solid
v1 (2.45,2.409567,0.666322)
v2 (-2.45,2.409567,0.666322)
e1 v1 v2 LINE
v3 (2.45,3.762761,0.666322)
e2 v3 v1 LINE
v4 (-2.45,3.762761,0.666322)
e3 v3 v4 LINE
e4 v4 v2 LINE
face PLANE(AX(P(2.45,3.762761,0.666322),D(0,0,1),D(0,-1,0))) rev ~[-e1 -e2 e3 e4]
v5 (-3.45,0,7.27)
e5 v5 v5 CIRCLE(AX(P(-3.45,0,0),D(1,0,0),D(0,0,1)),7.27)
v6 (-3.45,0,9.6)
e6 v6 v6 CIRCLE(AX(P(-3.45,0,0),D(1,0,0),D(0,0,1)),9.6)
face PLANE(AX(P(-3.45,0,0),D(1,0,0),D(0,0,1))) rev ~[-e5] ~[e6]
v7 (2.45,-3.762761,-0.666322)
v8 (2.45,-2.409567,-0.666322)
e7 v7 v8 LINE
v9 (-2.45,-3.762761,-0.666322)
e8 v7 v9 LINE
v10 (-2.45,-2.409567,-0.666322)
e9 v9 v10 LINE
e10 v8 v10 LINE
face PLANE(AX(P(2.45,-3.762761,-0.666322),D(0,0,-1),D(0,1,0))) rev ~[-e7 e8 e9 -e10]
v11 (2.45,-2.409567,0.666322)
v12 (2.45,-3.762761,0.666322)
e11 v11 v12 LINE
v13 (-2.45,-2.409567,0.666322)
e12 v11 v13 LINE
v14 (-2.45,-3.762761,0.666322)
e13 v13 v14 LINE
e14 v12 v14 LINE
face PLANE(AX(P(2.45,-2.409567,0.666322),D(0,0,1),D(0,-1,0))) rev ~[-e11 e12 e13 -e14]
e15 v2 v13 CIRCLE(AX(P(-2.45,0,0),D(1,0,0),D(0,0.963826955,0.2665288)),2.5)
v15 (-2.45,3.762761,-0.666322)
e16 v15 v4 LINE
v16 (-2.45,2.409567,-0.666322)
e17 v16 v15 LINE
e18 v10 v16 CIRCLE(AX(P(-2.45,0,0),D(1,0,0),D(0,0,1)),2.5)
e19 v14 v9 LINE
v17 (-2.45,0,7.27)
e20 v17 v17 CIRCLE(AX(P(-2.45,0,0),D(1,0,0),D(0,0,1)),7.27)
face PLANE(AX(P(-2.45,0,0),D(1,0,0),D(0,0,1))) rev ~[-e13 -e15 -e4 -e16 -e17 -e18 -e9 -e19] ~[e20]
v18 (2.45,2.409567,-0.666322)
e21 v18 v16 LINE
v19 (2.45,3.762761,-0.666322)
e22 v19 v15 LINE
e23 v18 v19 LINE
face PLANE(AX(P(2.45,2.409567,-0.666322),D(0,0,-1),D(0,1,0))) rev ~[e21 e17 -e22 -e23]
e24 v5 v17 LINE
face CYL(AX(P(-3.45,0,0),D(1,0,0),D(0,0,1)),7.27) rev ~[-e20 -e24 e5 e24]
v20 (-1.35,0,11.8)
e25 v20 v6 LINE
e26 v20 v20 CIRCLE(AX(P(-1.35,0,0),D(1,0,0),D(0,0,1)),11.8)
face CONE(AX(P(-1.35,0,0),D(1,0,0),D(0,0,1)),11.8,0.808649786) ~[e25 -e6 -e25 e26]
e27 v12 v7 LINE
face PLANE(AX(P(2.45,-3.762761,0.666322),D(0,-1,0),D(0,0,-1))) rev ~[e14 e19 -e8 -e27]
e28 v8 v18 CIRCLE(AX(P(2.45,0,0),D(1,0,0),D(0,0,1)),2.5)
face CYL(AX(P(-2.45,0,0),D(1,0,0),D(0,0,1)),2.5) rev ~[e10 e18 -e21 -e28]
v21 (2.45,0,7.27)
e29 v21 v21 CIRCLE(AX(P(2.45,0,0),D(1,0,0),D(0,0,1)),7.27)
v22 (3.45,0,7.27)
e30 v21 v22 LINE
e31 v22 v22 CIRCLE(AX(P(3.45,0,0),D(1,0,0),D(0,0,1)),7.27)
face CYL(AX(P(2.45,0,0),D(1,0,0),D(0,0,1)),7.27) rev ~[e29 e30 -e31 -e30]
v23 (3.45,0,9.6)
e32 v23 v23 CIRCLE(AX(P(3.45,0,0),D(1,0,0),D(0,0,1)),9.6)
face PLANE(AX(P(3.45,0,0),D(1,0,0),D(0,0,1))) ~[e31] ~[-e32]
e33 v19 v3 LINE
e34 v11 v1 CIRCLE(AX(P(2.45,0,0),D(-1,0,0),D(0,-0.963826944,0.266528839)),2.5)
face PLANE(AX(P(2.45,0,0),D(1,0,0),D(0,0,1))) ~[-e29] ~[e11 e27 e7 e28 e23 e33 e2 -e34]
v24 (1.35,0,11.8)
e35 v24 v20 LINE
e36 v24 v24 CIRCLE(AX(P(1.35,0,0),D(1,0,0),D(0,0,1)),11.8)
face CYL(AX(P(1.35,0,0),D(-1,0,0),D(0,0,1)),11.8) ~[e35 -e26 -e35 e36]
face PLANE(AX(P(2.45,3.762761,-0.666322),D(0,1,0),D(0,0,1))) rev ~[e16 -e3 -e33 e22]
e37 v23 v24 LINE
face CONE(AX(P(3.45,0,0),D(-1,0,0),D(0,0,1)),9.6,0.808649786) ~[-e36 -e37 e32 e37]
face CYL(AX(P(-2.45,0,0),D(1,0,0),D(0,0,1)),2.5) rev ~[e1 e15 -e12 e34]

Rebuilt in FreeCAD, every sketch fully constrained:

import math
import FreeCAD as App
import Part
import Sketcher
from FreeCAD import Vector

doc = App.newDocument("Part")
params = doc.addObject("Spreadsheet::Sheet", "Params")
for row, (alias, value) in enumerate([
    ("sketch1_width", "1 mm"),
    ("sketch1_width2", "2.7 mm"),
    ("sketch1_width3", "4.9 mm"),
    ("sketch1_height", "2.33 mm"),
    ("sketch1_height2", "4.77 mm"),
    ("revolution_angle", "360 deg"),
], start=1):
    params.set(f"A{row}", alias)
    params.set(f"B{row}", "=" + value)
    params.setAlias(f"B{row}", alias)

body = doc.addObject("PartDesign::Body", "Body")

# Sketch on XZ plane
sketch1 = body.newObject("Sketcher::SketchObject", "Sketch")
sketch1.AttachmentSupport = (doc.getObject("XZ_Plane"), [""])
sketch1.MapMode = "FlatFace"
sketch1.addGeometry([
    Part.LineSegment(Vector(1.35, 11.8, 0), Vector(-1.35, 11.8, 0)),  # 0
    Part.LineSegment(Vector(-1.35, 11.8, 0), Vector(-3.45, 9.6, 0)),  # 1
    Part.LineSegment(Vector(-3.45, 9.6, 0), Vector(-3.45, 7.27, 0)),  # 2
    Part.LineSegment(Vector(-3.45, 7.27, 0), Vector(-2.45, 7.27, 0)),  # 3
    Part.LineSegment(Vector(-2.45, 7.27, 0), Vector(-2.45, 2.5, 0)),  # 4
    Part.LineSegment(Vector(-2.45, 2.5, 0), Vector(2.45, 2.5, 0)),  # 5
    Part.LineSegment(Vector(2.45, 2.5, 0), Vector(2.45, 7.27, 0)),  # 6
    Part.LineSegment(Vector(2.45, 7.27, 0), Vector(3.45, 7.27, 0)),  # 7
    Part.LineSegment(Vector(3.45, 7.27, 0), Vector(3.45, 9.6, 0)),  # 8
    Part.LineSegment(Vector(3.45, 9.6, 0), Vector(1.35, 11.8, 0)),  # 9
], False)
sketch1.addConstraint([
    Sketcher.Constraint("Coincident", 0, 2, 1, 1),
    Sketcher.Constraint("Coincident", 1, 2, 2, 1),
    Sketcher.Constraint("Coincident", 2, 2, 3, 1),
    Sketcher.Constraint("Coincident", 3, 2, 4, 1),
    Sketcher.Constraint("Coincident", 4, 2, 5, 1),
    Sketcher.Constraint("Coincident", 5, 2, 6, 1),
    Sketcher.Constraint("Coincident", 6, 2, 7, 1),
    Sketcher.Constraint("Coincident", 7, 2, 8, 1),
    Sketcher.Constraint("Coincident", 8, 2, 9, 1),
    Sketcher.Constraint("Coincident", 9, 2, 0, 1),
    Sketcher.Constraint("Horizontal", 0),
    Sketcher.Constraint("Vertical", 2),
    Sketcher.Constraint("Horizontal", 3),
    Sketcher.Constraint("Vertical", 4),
    Sketcher.Constraint("Horizontal", 5),
    Sketcher.Constraint("Vertical", 6),
    Sketcher.Constraint("Horizontal", 7),
    Sketcher.Constraint("Vertical", 8),
    Sketcher.Constraint("Symmetric", 3, 2, 6, 2, -2),
    Sketcher.Constraint("Symmetric", 1, 2, 8, 2, -2),
    Sketcher.Constraint("Equal", 1, 9),
    Sketcher.Constraint("DistanceX", 3, 1, 3, 2, 1.0),
    Sketcher.Constraint("DistanceX", 0, 2, 0, 1, 2.7),
    Sketcher.Constraint("DistanceX", 5, 1, 5, 2, 4.9),
    Sketcher.Constraint("DistanceY", 2, 2, 2, 1, 2.33),
    Sketcher.Constraint("DistanceY", 4, 2, 4, 1, 4.77),
    Sketcher.Constraint("DistanceY", -1, 1, 0, 2, 11.8),
    Sketcher.Constraint("DistanceY", -1, 1, 1, 2, 9.6),
])
sketch1.setExpression("Constraints[21]", "Params.sketch1_width")
sketch1.setExpression("Constraints[22]", "Params.sketch1_width2")
sketch1.setExpression("Constraints[23]", "Params.sketch1_width3")
sketch1.setExpression("Constraints[24]", "Params.sketch1_height")
sketch1.setExpression("Constraints[25]", "Params.sketch1_height2")
revolution = body.newObject("PartDesign::Revolution", "Revolution")
revolution.Profile = sketch1
revolution.ReferenceAxis = (sketch1, ["H_Axis"])
revolution.setExpression("Angle", "Params.revolution_angle")

# Sketch on YZ plane
sketch2 = body.newObject("Sketcher::SketchObject", "Sketch001")
sketch2.AttachmentSupport = (doc.getObject("YZ_Plane"), [""])
sketch2.MapMode = "FlatFace"
sketch2.AttachmentOffset = App.Placement(Vector(0, 0, 2.45), App.Rotation())
sketch2.addGeometry([
    Part.LineSegment(Vector(-2.409567, 0.666322, 0), Vector(-3.762761, 0.666322, 0)),  # 0
    Part.LineSegment(Vector(-3.762761, 0.666322, 0), Vector(-3.762761, -0.666322, 0)),  # 1
    Part.LineSegment(Vector(-3.762761, -0.666322, 0), Vector(-2.409567, -0.666322, 0)),  # 2
    Part.ArcOfCircle(Part.Circle(Vector(-0.00001, 0, 0), Vector(0, 0, 1), 2.49999), math.radians(164.542121), math.radians(195.457879)),  # 3
    Part.LineSegment(Vector(3.762761, 0.666322, 0), Vector(2.409567, 0.666322, 0)),  # 4
    Part.ArcOfCircle(Part.Circle(Vector(0.000064, 0.000007, 0), Vector(0, 0, 1), 2.499936), math.radians(-0.000167), math.radians(15.458046)),  # 5
    Part.ArcOfCircle(Part.Circle(Vector(0.000064, -0.000007, 0), Vector(0, 0, 1), 2.499936), math.radians(-15.458046), math.radians(0.000167)),  # 6
    Part.LineSegment(Vector(2.409567, -0.666322, 0), Vector(3.762761, -0.666322, 0)),  # 7
    Part.LineSegment(Vector(3.762761, -0.666322, 0), Vector(3.762761, 0.666322, 0)),  # 8
], False)
sketch2.addConstraint([
    Sketcher.Constraint("Coincident", 0, 2, 1, 1),
    Sketcher.Constraint("Coincident", 1, 2, 2, 1),
    Sketcher.Constraint("Coincident", 2, 2, 3, 2),
    Sketcher.Constraint("Coincident", 3, 1, 0, 1),
    Sketcher.Constraint("Coincident", 4, 2, 5, 2),
    Sketcher.Constraint("Coincident", 5, 1, 6, 2),
    Sketcher.Constraint("Coincident", 6, 1, 7, 1),
    Sketcher.Constraint("Coincident", 7, 2, 8, 1),
    Sketcher.Constraint("Coincident", 8, 2, 4, 1),
    Sketcher.Constraint("Horizontal", 0),
    Sketcher.Constraint("Vertical", 1),
    Sketcher.Constraint("Horizontal", 2),
    Sketcher.Constraint("Horizontal", 4),
    Sketcher.Constraint("Horizontal", 7),
    Sketcher.Constraint("Vertical", 8),
    Sketcher.Constraint("Equal", 5, 6),
    Sketcher.Constraint("Symmetric", 2, 2, 4, 2, -1, 1),
    Sketcher.Constraint("Symmetric", 3, 1, 6, 1, -1, 1),
    Sketcher.Constraint("Symmetric", 3, 1, 4, 2, -2),
    Sketcher.Constraint("PointOnObject", 5, 1, -1),
    Sketcher.Constraint("Equal", 2, 4),
    Sketcher.Constraint("DistanceX", -1, 1, 5, 1, 2.5),
    Sketcher.Constraint("Radius", 3, 2.49999),
    Sketcher.Constraint("Radius", 5, 2.499936),
    Sketcher.Constraint("DistanceX", 0, 2, 0, 1, 1.353194),
    Sketcher.Constraint("DistanceY", 1, 2, 1, 1, 1.332644),
    Sketcher.Constraint("DistanceX", 0, 2, -1, 1, 3.762761),
])
pocket1 = body.newObject("PartDesign::Pocket", "Pocket")
pocket1.Profile = sketch2
pocket1.Type = "ThroughAll"

doc.recompute()
